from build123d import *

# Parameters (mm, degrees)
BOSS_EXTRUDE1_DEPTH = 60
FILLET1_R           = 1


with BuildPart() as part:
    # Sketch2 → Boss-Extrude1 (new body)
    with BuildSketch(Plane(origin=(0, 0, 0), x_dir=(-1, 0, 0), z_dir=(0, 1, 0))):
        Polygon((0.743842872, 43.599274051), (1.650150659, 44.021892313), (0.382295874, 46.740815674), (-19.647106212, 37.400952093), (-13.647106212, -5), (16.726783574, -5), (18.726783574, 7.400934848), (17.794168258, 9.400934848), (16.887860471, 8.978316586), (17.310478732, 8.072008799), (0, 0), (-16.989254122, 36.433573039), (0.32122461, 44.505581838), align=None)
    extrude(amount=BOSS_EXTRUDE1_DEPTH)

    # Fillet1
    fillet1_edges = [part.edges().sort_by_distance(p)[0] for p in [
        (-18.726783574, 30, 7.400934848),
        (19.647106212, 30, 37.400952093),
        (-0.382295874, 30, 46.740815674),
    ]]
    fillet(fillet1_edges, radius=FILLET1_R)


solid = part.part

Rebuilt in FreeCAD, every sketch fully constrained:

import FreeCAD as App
import Part
import Sketcher

V = App.Vector
Q = App.Units.Quantity


def edges_at(feature, points):
    """Names of the edges that pass closest to the given points."""
    edges = feature.Shape.Edges
    near = lambda p: min(range(len(edges)), key=lambda i: edges[i].distToShape(Part.Vertex(*p))[0])
    return sorted({f"Edge{near(p) + 1}" for p in points})

doc = App.newDocument("Part")
params = doc.addObject("Spreadsheet::Sheet", "Params")
for row, (alias, value) in enumerate([
    ("sketch1_length", "1 mm"),
    ("sketch1_length2", "3 mm"),
    ("sketch1_length3", "22.1 mm"),
    ("sketch1_length4", "19.1 mm"),
    ("sketch1_length5", "40.2 mm"),
    ("pad1_length", "60 mm"),
    ("fillet_radius", "1 mm"),
], start=1):
    params.set(f"A{row}", alias)
    params.set(f"B{row}", "=" + value)
    params.setAlias(f"B{row}", alias)

body = doc.addObject("PartDesign::Body", "Body")

# Sketch on XZ plane
sketch1 = body.newObject("Sketcher::SketchObject", "Sketch")
sketch1.AttachmentSupport = (doc.getObject("XZ_Plane"), [""])
sketch1.MapMode = "FlatFace"
sketch1.addGeometry([
    Part.LineSegment(V(-0.743843, 43.599274, 0), V(-1.650151, 44.021892, 0)),  # 0
    Part.LineSegment(V(-1.650151, 44.021892, 0), V(-0.382296, 46.740816, 0)),  # 1
    Part.LineSegment(V(-0.382296, 46.740816, 0), V(19.647106, 37.400952, 0)),  # 2
    Part.LineSegment(V(19.647106, 37.400952, 0), V(13.647106, -5, 0)),  # 3
    Part.LineSegment(V(13.647106, -5, 0), V(-16.726784, -5, 0)),  # 4
    Part.LineSegment(V(-16.726784, -5, 0), V(-18.726784, 7.400935, 0)),  # 5
    Part.LineSegment(V(-18.726784, 7.400935, 0), V(-17.794168, 9.400935, 0)),  # 6
    Part.LineSegment(V(-17.794168, 9.400935, 0), V(-16.88786, 8.978317, 0)),  # 7
    Part.LineSegment(V(-16.88786, 8.978317, 0), V(-17.310479, 8.072009, 0)),  # 8
    Part.LineSegment(V(-17.310479, 8.072009, 0), V(0, 0, 0)),  # 9
    Part.LineSegment(V(0, 0, 0), V(16.989254, 36.433573, 0)),  # 10
    Part.LineSegment(V(16.989254, 36.433573, 0), V(-0.321225, 44.505582, 0)),  # 11
    Part.LineSegment(V(-0.321225, 44.505582, 0), V(-0.743843, 43.599274, 0)),  # 12
], False)
sketch1.addConstraint([
    Sketcher.Constraint("Coincident", 0, 2, 1, 1),
    Sketcher.Constraint("Coincident", 1, 2, 2, 1),
    Sketcher.Constraint("Coincident", 2, 2, 3, 1),
    Sketcher.Constraint("Coincident", 3, 2, 4, 1),
    Sketcher.Constraint("Coincident", 4, 2, 5, 1),
    Sketcher.Constraint("Coincident", 5, 2, 6, 1),
    Sketcher.Constraint("Coincident", 6, 2, 7, 1),
    Sketcher.Constraint("Coincident", 7, 2, 8, 1),
    Sketcher.Constraint("Coincident", 8, 2, 9, 1),
    Sketcher.Constraint("Coincident", 9, 2, 10, 1),
    Sketcher.Constraint("Coincident", 10, 2, 11, 1),
    Sketcher.Constraint("Coincident", 11, 2, 12, 1),
    Sketcher.Constraint("Coincident", 12, 2, 0, 1),
    Sketcher.Constraint("Horizontal", 4),
    Sketcher.Constraint("Coincident", 9, 2, -1, 1),
    Sketcher.Constraint("Perpendicular", 0, 1),
    Sketcher.Constraint("Perpendicular", 1, 2),
    Sketcher.Constraint("Perpendicular", 2, 6),
    Sketcher.Constraint("Perpendicular", 6, 7),
    Sketcher.Constraint("Perpendicular", 7, 8),
    Sketcher.Constraint("Perpendicular", 8, 9),
    Sketcher.Constraint("Perpendicular", 9, 10),
    Sketcher.Constraint("Perpendicular", 10, 11),
    Sketcher.Constraint("Perpendicular", 11, 12),
    Sketcher.Constraint("Equal", 0, 7),
    Sketcher.Constraint("Equal", 7, 8),
    Sketcher.Constraint("Equal", 9, 11),
    Sketcher.Constraint("Equal", 8, 12),
    Sketcher.Constraint("Angle", 0, Q("155 deg")),
    Sketcher.Constraint("Distance", 0, Q("1 mm")),
    Sketcher.Constraint("Distance", 1, Q("3 mm")),
    Sketcher.Constraint("DistanceY", 3, 2, -1, 1, Q("5 mm")),
    Sketcher.Constraint("DistanceX", 3, 2, 2, 2, Q("6 mm")),
    Sketcher.Constraint("DistanceX", 5, 2, 4, 2, Q("2 mm")),
    Sketcher.Constraint("DistanceY", 5, 2, 6, 2, Q("2 mm")),
    Sketcher.Constraint("Distance", 2, Q("22.1 mm")),
    Sketcher.Constraint("Distance", 9, Q("19.1 mm")),
    Sketcher.Constraint("Distance", 10, Q("40.2 mm")),
])
sketch1.setExpression("Constraints[29]", "Params.sketch1_length")
sketch1.setExpression("Constraints[30]", "Params.sketch1_length2")
sketch1.setExpression("Constraints[35]", "Params.sketch1_length3")
sketch1.setExpression("Constraints[36]", "Params.sketch1_length4")
sketch1.setExpression("Constraints[37]", "Params.sketch1_length5")
pad1 = body.newObject("PartDesign::Pad", "Pad")
pad1.Profile = sketch1
pad1.setExpression("Length", "Params.pad1_length")
pad1.Reversed = True
doc.recompute()

fillet = body.newObject("PartDesign::Fillet", "Fillet")
fillet.Base = (pad1, edges_at(pad1, [(-18.727, 30, 7.401), (19.647, 30, 37.401), (-0.382, 30, 46.741)]))
fillet.setExpression("Radius", "Params.fillet_radius")

doc.recompute()
